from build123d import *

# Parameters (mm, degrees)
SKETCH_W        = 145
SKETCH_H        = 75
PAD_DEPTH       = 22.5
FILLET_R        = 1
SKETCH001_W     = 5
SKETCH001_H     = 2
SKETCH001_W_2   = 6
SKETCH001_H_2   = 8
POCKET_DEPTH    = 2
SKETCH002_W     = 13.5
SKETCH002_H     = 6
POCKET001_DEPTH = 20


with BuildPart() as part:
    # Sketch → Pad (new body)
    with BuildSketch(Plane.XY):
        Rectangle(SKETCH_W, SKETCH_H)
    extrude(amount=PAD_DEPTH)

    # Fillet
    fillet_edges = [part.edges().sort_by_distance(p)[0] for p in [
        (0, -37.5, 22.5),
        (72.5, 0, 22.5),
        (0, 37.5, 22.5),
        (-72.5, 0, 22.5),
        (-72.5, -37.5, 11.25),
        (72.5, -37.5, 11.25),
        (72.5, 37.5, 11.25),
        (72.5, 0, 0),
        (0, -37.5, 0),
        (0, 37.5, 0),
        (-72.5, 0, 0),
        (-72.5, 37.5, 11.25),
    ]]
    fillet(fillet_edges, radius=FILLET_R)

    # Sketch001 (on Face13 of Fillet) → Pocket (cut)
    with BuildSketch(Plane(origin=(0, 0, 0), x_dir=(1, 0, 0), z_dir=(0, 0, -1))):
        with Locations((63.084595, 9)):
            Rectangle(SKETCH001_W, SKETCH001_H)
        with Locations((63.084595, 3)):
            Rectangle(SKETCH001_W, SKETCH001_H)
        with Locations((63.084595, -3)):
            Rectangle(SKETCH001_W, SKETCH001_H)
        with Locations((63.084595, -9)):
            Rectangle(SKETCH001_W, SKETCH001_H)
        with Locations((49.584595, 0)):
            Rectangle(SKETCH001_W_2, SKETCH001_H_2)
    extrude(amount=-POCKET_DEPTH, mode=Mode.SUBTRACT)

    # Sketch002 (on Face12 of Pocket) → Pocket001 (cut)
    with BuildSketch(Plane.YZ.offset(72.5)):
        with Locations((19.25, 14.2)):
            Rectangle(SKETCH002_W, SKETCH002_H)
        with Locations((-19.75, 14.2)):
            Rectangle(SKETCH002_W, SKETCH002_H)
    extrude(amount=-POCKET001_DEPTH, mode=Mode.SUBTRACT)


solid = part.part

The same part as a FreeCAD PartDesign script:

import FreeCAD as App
import Part
import Sketcher
from FreeCAD import Vector
Q = App.Units.Quantity

doc = App.newDocument("Part")
body = doc.addObject("PartDesign::Body", "Body")

# Sketch on XY plane
sketch1 = doc.addObject("Sketcher::SketchObject", "Sketch")
body.addObject(sketch1)
sketch1.AttachmentSupport = (doc.XY_Plane, [""])
sketch1.MapMode = "FlatFace"
sketch1.addGeometry(Part.LineSegment(Vector(-72, 38, 0), Vector(-72, -38, 0)), False)
sketch1.addGeometry(Part.LineSegment(Vector(-72, -38, 0), Vector(72, -38, 0)), False)
sketch1.addGeometry(Part.LineSegment(Vector(72, -38, 0), Vector(72, 38, 0)), False)
sketch1.addGeometry(Part.LineSegment(Vector(72, 38, 0), Vector(-72, 38, 0)), False)
sketch1.addConstraint(Sketcher.Constraint("Coincident", 0, 2, 1, 1))
sketch1.addConstraint(Sketcher.Constraint("Coincident", 1, 2, 2, 1))
sketch1.addConstraint(Sketcher.Constraint("Coincident", 2, 2, 3, 1))
sketch1.addConstraint(Sketcher.Constraint("Coincident", 3, 2, 0, 1))
sketch1.addConstraint(Sketcher.Constraint("Vertical", 0))
sketch1.addConstraint(Sketcher.Constraint("Horizontal", 1))
sketch1.addConstraint(Sketcher.Constraint("Vertical", 2))
sketch1.addConstraint(Sketcher.Constraint("Horizontal", 3))
sketch1.addConstraint(Sketcher.Constraint("Symmetric", 0, 2, 2, 2, -1, 1))
sketch1.addConstraint(Sketcher.Constraint("DistanceX", 1, 1, 1, 2, Q("145 mm")))
sketch1.addConstraint(Sketcher.Constraint("DistanceY", 0, 2, 0, 1, Q("75 mm")))
pad1 = doc.addObject("PartDesign::Pad", "Pad")
body.addObject(pad1)
pad1.Profile = sketch1
pad1.Length = 22.5
doc.recompute()

fillet = doc.addObject("PartDesign::Fillet", "Fillet")
body.addObject(fillet)
fillet.Base = (pad1, ["Edge1"])
fillet.UseAllEdges = True
fillet.Radius = 1

# Sketch on XY plane
sketch2 = doc.addObject("Sketcher::SketchObject", "Sketch001")
body.addObject(sketch2)
sketch2.AttachmentSupport = (doc.XY_Plane, [""])
sketch2.MapMode = "FlatFace"
sketch2.addGeometry(Part.LineSegment(Vector(60.6, -10, 0), Vector(60.6, -8, 0)), False)
sketch2.addGeometry(Part.LineSegment(Vector(60.6, -8, 0), Vector(65.6, -8, 0)), False)
sketch2.addGeometry(Part.LineSegment(Vector(65.6, -8, 0), Vector(65.6, -10, 0)), False)
sketch2.addGeometry(Part.LineSegment(Vector(65.6, -10, 0), Vector(60.6, -10, 0)), False)
sketch2.addGeometry(Part.LineSegment(Vector(60.6, -4, 0), Vector(60.6, -2, 0)), False)
sketch2.addGeometry(Part.LineSegment(Vector(60.6, -2, 0), Vector(65.6, -2, 0)), False)
sketch2.addGeometry(Part.LineSegment(Vector(65.6, -2, 0), Vector(65.6, -4, 0)), False)
sketch2.addGeometry(Part.LineSegment(Vector(65.6, -4, 0), Vector(60.6, -4, 0)), False)
sketch2.addGeometry(Part.LineSegment(Vector(60.6, 2, 0), Vector(60.6, 4, 0)), False)
sketch2.addGeometry(Part.LineSegment(Vector(60.6, 4, 0), Vector(65.6, 4, 0)), False)
sketch2.addGeometry(Part.LineSegment(Vector(65.6, 4, 0), Vector(65.6, 2, 0)), False)
sketch2.addGeometry(Part.LineSegment(Vector(65.6, 2, 0), Vector(60.6, 2, 0)), False)
sketch2.addGeometry(Part.LineSegment(Vector(60.6, 8, 0), Vector(60.6, 10, 0)), False)
sketch2.addGeometry(Part.LineSegment(Vector(60.6, 10, 0), Vector(65.6, 10, 0)), False)
sketch2.addGeometry(Part.LineSegment(Vector(65.6, 10, 0), Vector(65.6, 8, 0)), False)
sketch2.addGeometry(Part.LineSegment(Vector(65.6, 8, 0), Vector(60.6, 8, 0)), False)
sketch2.addGeometry(Part.LineSegment(Vector(46.6, -4, 0), Vector(46.6, 4, 0)), False)
sketch2.addGeometry(Part.LineSegment(Vector(46.6, 4, 0), Vector(52.6, 4, 0)), False)
sketch2.addGeometry(Part.LineSegment(Vector(52.6, 4, 0), Vector(52.6, -4, 0)), False)
sketch2.addGeometry(Part.LineSegment(Vector(52.6, -4, 0), Vector(46.6, -4, 0)), False)
sketch2.addConstraint(Sketcher.Constraint("Coincident", 0, 2, 1, 1))
sketch2.addConstraint(Sketcher.Constraint("Coincident", 1, 2, 2, 1))
sketch2.addConstraint(Sketcher.Constraint("Coincident", 2, 2, 3, 1))
sketch2.addConstraint(Sketcher.Constraint("Coincident", 3, 2, 0, 1))
sketch2.addConstraint(Sketcher.Constraint("Coincident", 4, 2, 5, 1))
sketch2.addConstraint(Sketcher.Constraint("Coincident", 5, 2, 6, 1))
sketch2.addConstraint(Sketcher.Constraint("Coincident", 6, 2, 7, 1))
sketch2.addConstraint(Sketcher.Constraint("Coincident", 7, 2, 4, 1))
sketch2.addConstraint(Sketcher.Constraint("Coincident", 8, 2, 9, 1))
sketch2.addConstraint(Sketcher.Constraint("Coincident", 9, 2, 10, 1))
sketch2.addConstraint(Sketcher.Constraint("Coincident", 10, 2, 11, 1))
sketch2.addConstraint(Sketcher.Constraint("Coincident", 11, 2, 8, 1))
sketch2.addConstraint(Sketcher.Constraint("Coincident", 12, 2, 13, 1))
sketch2.addConstraint(Sketcher.Constraint("Coincident", 13, 2, 14, 1))
sketch2.addConstraint(Sketcher.Constraint("Coincident", 14, 2, 15, 1))
sketch2.addConstraint(Sketcher.Constraint("Coincident", 15, 2, 12, 1))
sketch2.addConstraint(Sketcher.Constraint("Coincident", 16, 2, 17, 1))
sketch2.addConstraint(Sketcher.Constraint("Coincident", 17, 2, 18, 1))
sketch2.addConstraint(Sketcher.Constraint("Coincident", 18, 2, 19, 1))
sketch2.addConstraint(Sketcher.Constraint("Coincident", 19, 2, 16, 1))
sketch2.addConstraint(Sketcher.Constraint("Vertical", 0))
sketch2.addConstraint(Sketcher.Constraint("Horizontal", 1))
sketch2.addConstraint(Sketcher.Constraint("Vertical", 2))
sketch2.addConstraint(Sketcher.Constraint("Horizontal", 3))
sketch2.addConstraint(Sketcher.Constraint("Vertical", 4))
sketch2.addConstraint(Sketcher.Constraint("Horizontal", 5))
sketch2.addConstraint(Sketcher.Constraint("Vertical", 6))
sketch2.addConstraint(Sketcher.Constraint("Horizontal", 7))
sketch2.addConstraint(Sketcher.Constraint("Vertical", 8))
sketch2.addConstraint(Sketcher.Constraint("Horizontal", 9))
sketch2.addConstraint(Sketcher.Constraint("Vertical", 10))
sketch2.addConstraint(Sketcher.Constraint("Horizontal", 11))
sketch2.addConstraint(Sketcher.Constraint("Vertical", 12))
sketch2.addConstraint(Sketcher.Constraint("Horizontal", 13))
sketch2.addConstraint(Sketcher.Constraint("Vertical", 14))
sketch2.addConstraint(Sketcher.Constraint("Horizontal", 15))
sketch2.addConstraint(Sketcher.Constraint("Vertical", 16))
sketch2.addConstraint(Sketcher.Constraint("Horizontal", 17))
sketch2.addConstraint(Sketcher.Constraint("Vertical", 18))
sketch2.addConstraint(Sketcher.Constraint("Horizontal", 19))
sketch2.addConstraint(Sketcher.Constraint("Symmetric", 7, 2, 8, 2, -1))
sketch2.addConstraint(Sketcher.Constraint("Symmetric", 5, 2, 10, 2, -1))
sketch2.addConstraint(Sketcher.Constraint("Symmetric", 3, 2, 12, 2, -1))
sketch2.addConstraint(Sketcher.Constraint("Symmetric", 1, 2, 14, 2, -1))
sketch2.addConstraint(Sketcher.Constraint("Horizontal", 9, 2, 16, 2))
sketch2.addConstraint(Sketcher.Constraint("Horizontal", 7, 2, 18, 2))
sketch2.addConstraint(Sketcher.Constraint("Vertical", 3, 2, 4, 2))
sketch2.addConstraint(Sketcher.Constraint("Vertical", 2, 2, 5, 2))
sketch2.addConstraint(Sketcher.Constraint("Equal", 2, 4))
sketch2.addConstraint(Sketcher.Constraint("DistanceX", 1, 1, 1, 2, Q("5 mm")))
sketch2.addConstraint(Sketcher.Constraint("DistanceX", 17, 1, 17, 2, Q("6 mm")))
sketch2.addConstraint(Sketcher.Constraint("DistanceY", 0, 1, 0, 2, Q("2 mm")))
sketch2.addConstraint(Sketcher.Constraint("DistanceY", 16, 1, 16, 2, Q("8 mm")))
sketch2.addConstraint(Sketcher.Constraint("DistanceY", 0, 2, -1, 1, Q("8 mm")))
sketch2.addConstraint(Sketcher.Constraint("DistanceX", 16, 2, 8, 2, Q("14 mm")))
sketch2.addConstraint(Sketcher.Constraint("DistanceX", -1, 1, 0, 2, Q("60.584595 mm")))
pocket1 = doc.addObject("PartDesign::Pocket", "Pocket")
body.addObject(pocket1)
pocket1.Profile = sketch2
pocket1.Length = 2
pocket1.Reversed = True

# Sketch on YZ plane
sketch3 = doc.addObject("Sketcher::SketchObject", "Sketch002")
body.addObject(sketch3)
sketch3.AttachmentSupport = (doc.YZ_Plane, [""])
sketch3.MapMode = "FlatFace"
sketch3.AttachmentOffset = App.Placement(Vector(0, 0, 72.5), App.Rotation())
sketch3.addGeometry(Part.LineSegment(Vector(12, 17, 0), Vector(12, 11, 0)), False)
sketch3.addGeometry(Part.LineSegment(Vector(12, 11, 0), Vector(26, 11, 0)), False)
sketch3.addGeometry(Part.LineSegment(Vector(26, 11, 0), Vector(26, 17, 0)), False)
sketch3.addGeometry(Part.LineSegment(Vector(26, 17, 0), Vector(12, 17, 0)), False)
sketch3.addGeometry(Part.LineSegment(Vector(-26, 17, 0), Vector(-26, 11, 0)), False)
sketch3.addGeometry(Part.LineSegment(Vector(-26, 11, 0), Vector(-13, 11, 0)), False)
sketch3.addGeometry(Part.LineSegment(Vector(-13, 11, 0), Vector(-13, 17, 0)), False)
sketch3.addGeometry(Part.LineSegment(Vector(-13, 17, 0), Vector(-26, 17, 0)), False)
sketch3.addConstraint(Sketcher.Constraint("Coincident", 0, 2, 1, 1))
sketch3.addConstraint(Sketcher.Constraint("Coincident", 1, 2, 2, 1))
sketch3.addConstraint(Sketcher.Constraint("Coincident", 2, 2, 3, 1))
sketch3.addConstraint(Sketcher.Constraint("Coincident", 3, 2, 0, 1))
sketch3.addConstraint(Sketcher.Constraint("Coincident", 4, 2, 5, 1))
sketch3.addConstraint(Sketcher.Constraint("Coincident", 5, 2, 6, 1))
sketch3.addConstraint(Sketcher.Constraint("Coincident", 6, 2, 7, 1))
sketch3.addConstraint(Sketcher.Constraint("Coincident", 7, 2, 4, 1))
sketch3.addConstraint(Sketcher.Constraint("Vertical", 0))
sketch3.addConstraint(Sketcher.Constraint("Horizontal", 1))
sketch3.addConstraint(Sketcher.Constraint("Vertical", 2))
sketch3.addConstraint(Sketcher.Constraint("Horizontal", 3))
sketch3.addConstraint(Sketcher.Constraint("Vertical", 4))
sketch3.addConstraint(Sketcher.Constraint("Horizontal", 5))
sketch3.addConstraint(Sketcher.Constraint("Vertical", 6))
sketch3.addConstraint(Sketcher.Constraint("Horizontal", 7))
sketch3.addConstraint(Sketcher.Constraint("Horizontal", 1, 2, 4, 2))
sketch3.addConstraint(Sketcher.Constraint("Horizontal", 3, 2, 6, 2))
sketch3.addConstraint(Sketcher.Constraint("Equal", 3, 5))
sketch3.addConstraint(Sketcher.Constraint("DistanceY", 0, 2, 0, 1, Q("6 mm")))
sketch3.addConstraint(Sketcher.Constraint("DistanceX", 1, 1, 1, 2, Q("13.5 mm")))
sketch3.addConstraint(Sketcher.Constraint("DistanceX", -1, 1, 1, 2, Q("26 mm")))
sketch3.addConstraint(Sketcher.Constraint("DistanceX", 5, 2, -1, 1, Q("13 mm")))
sketch3.addConstraint(Sketcher.Constraint("DistanceY", -1, 1, 0, 2, Q("11.2 mm")))
pocket2 = doc.addObject("PartDesign::Pocket", "Pocket001")
body.addObject(pocket2)
pocket2.Profile = sketch3
pocket2.Length = 20

doc.recompute()
